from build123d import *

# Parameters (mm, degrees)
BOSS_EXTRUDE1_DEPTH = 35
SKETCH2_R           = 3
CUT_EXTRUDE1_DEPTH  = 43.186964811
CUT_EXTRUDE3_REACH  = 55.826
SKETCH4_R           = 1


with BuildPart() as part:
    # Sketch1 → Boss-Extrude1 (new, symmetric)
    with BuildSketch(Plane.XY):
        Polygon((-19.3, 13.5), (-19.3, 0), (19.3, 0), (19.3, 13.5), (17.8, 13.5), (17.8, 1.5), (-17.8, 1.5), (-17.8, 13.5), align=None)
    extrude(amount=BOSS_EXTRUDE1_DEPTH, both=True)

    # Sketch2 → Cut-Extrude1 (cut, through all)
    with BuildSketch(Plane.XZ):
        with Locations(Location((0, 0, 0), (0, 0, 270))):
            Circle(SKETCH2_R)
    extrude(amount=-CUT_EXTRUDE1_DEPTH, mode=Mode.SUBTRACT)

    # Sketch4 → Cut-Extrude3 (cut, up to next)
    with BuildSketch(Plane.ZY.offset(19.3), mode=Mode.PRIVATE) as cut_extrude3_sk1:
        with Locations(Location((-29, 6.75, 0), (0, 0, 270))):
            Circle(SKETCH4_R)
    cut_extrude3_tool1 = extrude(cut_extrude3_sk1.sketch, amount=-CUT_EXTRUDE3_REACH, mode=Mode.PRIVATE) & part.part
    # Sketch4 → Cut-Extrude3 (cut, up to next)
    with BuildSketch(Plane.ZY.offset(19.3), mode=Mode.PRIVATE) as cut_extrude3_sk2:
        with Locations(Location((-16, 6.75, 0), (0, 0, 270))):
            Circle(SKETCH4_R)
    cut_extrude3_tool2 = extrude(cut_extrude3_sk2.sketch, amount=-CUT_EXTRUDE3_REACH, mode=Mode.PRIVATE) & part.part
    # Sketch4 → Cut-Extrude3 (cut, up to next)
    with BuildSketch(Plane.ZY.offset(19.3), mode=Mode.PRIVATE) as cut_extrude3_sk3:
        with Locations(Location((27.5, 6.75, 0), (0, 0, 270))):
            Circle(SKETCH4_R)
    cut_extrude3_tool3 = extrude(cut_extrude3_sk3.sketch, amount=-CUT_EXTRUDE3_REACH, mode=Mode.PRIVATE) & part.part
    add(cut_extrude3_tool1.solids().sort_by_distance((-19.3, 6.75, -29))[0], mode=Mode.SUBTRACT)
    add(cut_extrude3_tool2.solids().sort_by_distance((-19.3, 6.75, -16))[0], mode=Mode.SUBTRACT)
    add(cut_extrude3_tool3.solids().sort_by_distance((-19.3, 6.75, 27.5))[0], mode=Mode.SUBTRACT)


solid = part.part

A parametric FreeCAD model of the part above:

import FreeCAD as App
import Part
import Sketcher
from FreeCAD import Vector
Q = App.Units.Quantity


def add_polygon(sketch, points):
    """Adds a closed chain of lines whose ends are joined by coincident constraints."""
    first, n = sketch.GeometryCount, len(points)
    for a, b in zip(points, points[1:] + points[:1]):
        sketch.addGeometry(Part.LineSegment(App.Vector(*a, 0), App.Vector(*b, 0)), False)
    for i in range(n):
        sketch.addConstraint(Sketcher.Constraint("Coincident", first + i, 2, first + (i + 1) % n, 1))

doc = App.newDocument("Part")
body = doc.addObject("PartDesign::Body", "Body")

# Sketch on XY plane
sketch1 = body.newObject("Sketcher::SketchObject", "Sketch")
sketch1.AttachmentSupport = (doc.getObject("XY_Plane"), [""])
sketch1.MapMode = "FlatFace"
add_polygon(sketch1, [(-19.3, 13.5), (-19.3, 0), (19.3, 0), (19.3, 13.5), (17.8, 13.5), (17.8, 1.5), (-17.8, 1.5), (-17.8, 13.5)])  # lines 0-7
sketch1.addConstraint([
    Sketcher.Constraint("Vertical", 0),
    Sketcher.Constraint("Horizontal", 1),
    Sketcher.Constraint("Vertical", 2),
    Sketcher.Constraint("Horizontal", 3),
    Sketcher.Constraint("Vertical", 4),
    Sketcher.Constraint("Horizontal", 5),
    Sketcher.Constraint("Vertical", 6),
    Sketcher.Constraint("Horizontal", 7),
    Sketcher.Constraint("Symmetric", 0, 2, 1, 2, -1, 1),
    Sketcher.Constraint("Symmetric", 3, 2, 6, 2, -2),
    Sketcher.Constraint("DistanceY", 4, 2, 4, 1, Q("12 mm")),
    Sketcher.Constraint("DistanceX", 1, 1, 1, 2, Q("38.6 mm")),
    Sketcher.Constraint("DistanceX", 3, 2, 3, 1, Q("1.5 mm")),
    Sketcher.Constraint("DistanceY", 0, 2, 0, 1, Q("13.5 mm")),
])
pad1 = body.newObject("PartDesign::Pad", "Pad")
pad1.Profile = sketch1
pad1.Length = 70
pad1.Midplane = True

# Sketch on XZ plane
sketch2 = body.newObject("Sketcher::SketchObject", "Sketch001")
sketch2.AttachmentSupport = (doc.getObject("XZ_Plane"), [""])
sketch2.MapMode = "FlatFace"
sketch2.addGeometry(Part.Circle(Vector(0, 0, 0), Vector(0, 0, 1), 3), False)
sketch2.addConstraint([
    Sketcher.Constraint("Coincident", 0, 3, -1, 1),
    Sketcher.Constraint("Diameter", 0, Q("6 mm")),
])
pocket1 = body.newObject("PartDesign::Pocket", "Pocket")
pocket1.Profile = sketch2
pocket1.Type = "ThroughAll"

# Sketch on YZ plane
sketch3 = body.newObject("Sketcher::SketchObject", "Sketch002")
sketch3.AttachmentSupport = (doc.getObject("YZ_Plane"), [""])
sketch3.MapMode = "FlatFace"
sketch3.AttachmentOffset = App.Placement(Vector(0, 0, -19.3), App.Rotation())
sketch3.addGeometry(Part.Circle(Vector(6.8, -29, 0), Vector(0, 0, 1), 1), False)
sketch3.addConstraint([
    Sketcher.Constraint("Diameter", 0, Q("2 mm")),
    Sketcher.Constraint("DistanceY", 0, 3, -1, 1, Q("29 mm")),
    Sketcher.Constraint("DistanceX", -1, 1, 0, 3, Q("6.75 mm")),
])
pocket2 = body.newObject("PartDesign::Pocket", "Pocket001")
pocket2.Profile = sketch3
pocket2.Type = "UpToFirst"
pocket2.Reversed = True

# Sketch on YZ plane
sketch4 = body.newObject("Sketcher::SketchObject", "Sketch003")
sketch4.AttachmentSupport = (doc.getObject("YZ_Plane"), [""])
sketch4.MapMode = "FlatFace"
sketch4.AttachmentOffset = App.Placement(Vector(0, 0, -19.3), App.Rotation())
sketch4.addGeometry(Part.Circle(Vector(6.8, -16, 0), Vector(0, 0, 1), 1), False)
sketch4.addConstraint([
    Sketcher.Constraint("Diameter", 0, Q("2 mm")),
    Sketcher.Constraint("DistanceY", 0, 3, -1, 1, Q("16 mm")),
    Sketcher.Constraint("DistanceX", -1, 1, 0, 3, Q("6.75 mm")),
])
pocket3 = body.newObject("PartDesign::Pocket", "Pocket002")
pocket3.Profile = sketch4
pocket3.Type = "UpToFirst"
pocket3.Reversed = True

# Sketch on YZ plane
sketch5 = body.newObject("Sketcher::SketchObject", "Sketch004")
sketch5.AttachmentSupport = (doc.getObject("YZ_Plane"), [""])
sketch5.MapMode = "FlatFace"
sketch5.AttachmentOffset = App.Placement(Vector(0, 0, -19.3), App.Rotation())
sketch5.addGeometry(Part.Circle(Vector(6.8, 27.5, 0), Vector(0, 0, 1), 1), False)
sketch5.addConstraint([
    Sketcher.Constraint("Diameter", 0, Q("2 mm")),
    Sketcher.Constraint("DistanceY", -1, 1, 0, 3, Q("27.5 mm")),
    Sketcher.Constraint("DistanceX", -1, 1, 0, 3, Q("6.75 mm")),
])
pocket4 = body.newObject("PartDesign::Pocket", "Pocket003")
pocket4.Profile = sketch5
pocket4.Type = "UpToFirst"
pocket4.Reversed = True

doc.recompute()
